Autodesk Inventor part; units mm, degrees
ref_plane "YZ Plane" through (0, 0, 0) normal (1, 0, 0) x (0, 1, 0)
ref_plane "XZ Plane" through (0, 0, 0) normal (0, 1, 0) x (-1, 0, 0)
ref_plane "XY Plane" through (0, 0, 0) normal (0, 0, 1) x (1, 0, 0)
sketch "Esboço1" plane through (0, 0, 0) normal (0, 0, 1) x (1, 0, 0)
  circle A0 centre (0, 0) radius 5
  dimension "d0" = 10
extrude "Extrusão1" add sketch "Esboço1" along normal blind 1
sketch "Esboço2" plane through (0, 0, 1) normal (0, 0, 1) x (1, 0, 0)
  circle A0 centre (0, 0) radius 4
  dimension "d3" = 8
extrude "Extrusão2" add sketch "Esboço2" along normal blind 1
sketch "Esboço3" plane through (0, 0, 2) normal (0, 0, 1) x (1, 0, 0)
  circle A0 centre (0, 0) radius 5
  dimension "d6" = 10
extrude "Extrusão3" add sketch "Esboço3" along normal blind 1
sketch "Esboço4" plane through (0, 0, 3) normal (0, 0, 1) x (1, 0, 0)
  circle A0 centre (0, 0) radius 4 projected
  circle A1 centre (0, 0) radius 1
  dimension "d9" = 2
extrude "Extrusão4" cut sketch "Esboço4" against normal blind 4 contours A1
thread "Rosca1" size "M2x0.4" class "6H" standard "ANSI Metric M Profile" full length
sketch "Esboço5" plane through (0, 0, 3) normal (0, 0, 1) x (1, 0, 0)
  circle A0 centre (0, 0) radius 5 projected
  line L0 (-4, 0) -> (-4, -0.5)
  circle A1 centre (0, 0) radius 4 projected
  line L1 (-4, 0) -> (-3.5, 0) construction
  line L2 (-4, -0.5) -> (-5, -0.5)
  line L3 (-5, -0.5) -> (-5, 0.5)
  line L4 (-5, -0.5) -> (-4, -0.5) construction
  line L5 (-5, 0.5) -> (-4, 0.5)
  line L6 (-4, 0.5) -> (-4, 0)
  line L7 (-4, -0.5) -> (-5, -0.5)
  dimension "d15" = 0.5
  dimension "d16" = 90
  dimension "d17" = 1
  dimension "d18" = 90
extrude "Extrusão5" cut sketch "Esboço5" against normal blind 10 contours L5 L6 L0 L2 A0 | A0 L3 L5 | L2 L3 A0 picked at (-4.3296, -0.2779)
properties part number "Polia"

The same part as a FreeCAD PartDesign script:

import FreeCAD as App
import Part
import Sketcher

doc = App.newDocument("Part")
body = doc.addObject("PartDesign::Body", "Body")

# Sketch on XY plane
sketch1 = doc.addObject("Sketcher::SketchObject", "Sketch")
body.addObject(sketch1)
sketch1.AttachmentSupport = (doc.XY_Plane, [""])
sketch1.MapMode = "FlatFace"
sketch1.addGeometry(Part.Circle(App.Vector(0, 0, 0), App.Vector(0, 0, 1), 5), False)
sketch1.addConstraint([
    Sketcher.Constraint("Coincident", 0, 3, -1, 1),
    Sketcher.Constraint("Diameter", 0, 10.0),
])
pad1 = doc.addObject("PartDesign::Pad", "Pad")
body.addObject(pad1)
pad1.Profile = sketch1
pad1.Length = 1

# Sketch on XY plane
sketch2 = doc.addObject("Sketcher::SketchObject", "Sketch001")
body.addObject(sketch2)
sketch2.AttachmentSupport = (doc.XY_Plane, [""])
sketch2.MapMode = "FlatFace"
sketch2.AttachmentOffset = App.Placement(App.Vector(0, 0, 1), App.Rotation())
sketch2.addGeometry(Part.Circle(App.Vector(0, 0, 0), App.Vector(0, 0, 1), 4), False)
sketch2.addConstraint([
    Sketcher.Constraint("Coincident", 0, 3, -1, 1),
    Sketcher.Constraint("Diameter", 0, 8.0),
])
pad2 = doc.addObject("PartDesign::Pad", "Pad001")
body.addObject(pad2)
pad2.Profile = sketch2
pad2.Length = 1

# Sketch on XY plane
sketch3 = doc.addObject("Sketcher::SketchObject", "Sketch002")
body.addObject(sketch3)
sketch3.AttachmentSupport = (doc.XY_Plane, [""])
sketch3.MapMode = "FlatFace"
sketch3.AttachmentOffset = App.Placement(App.Vector(0, 0, 2), App.Rotation())
sketch3.addGeometry(Part.Circle(App.Vector(0, 0, 0), App.Vector(0, 0, 1), 5), False)
sketch3.addConstraint([
    Sketcher.Constraint("Coincident", 0, 3, -1, 1),
    Sketcher.Constraint("Diameter", 0, 10.0),
])
pad3 = doc.addObject("PartDesign::Pad", "Pad002")
body.addObject(pad3)
pad3.Profile = sketch3
pad3.Length = 1

# Sketch on XY plane
sketch4 = doc.addObject("Sketcher::SketchObject", "Sketch003")
body.addObject(sketch4)
sketch4.AttachmentSupport = (doc.XY_Plane, [""])
sketch4.MapMode = "FlatFace"
sketch4.AttachmentOffset = App.Placement(App.Vector(0, 0, 3), App.Rotation())
sketch4.addGeometry(Part.Circle(App.Vector(0, 0, 0), App.Vector(0, 0, 1), 1), False)
sketch4.addConstraint([
    Sketcher.Constraint("Coincident", 0, 3, -1, 1),
    Sketcher.Constraint("Diameter", 0, 2.0),
])
pocket1 = doc.addObject("PartDesign::Pocket", "Pocket")
body.addObject(pocket1)
pocket1.Profile = sketch4
pocket1.Length = 4

# Sketch on XY plane
sketch5 = doc.addObject("Sketcher::SketchObject", "Sketch004")
body.addObject(sketch5)
sketch5.AttachmentSupport = (doc.XY_Plane, [""])
sketch5.MapMode = "FlatFace"
sketch5.AttachmentOffset = App.Placement(App.Vector(0, 0, 3), App.Rotation())
sketch5.addGeometry([
    Part.LineSegment(App.Vector(-4, 0.5, 0), App.Vector(-5, 0.5, 0)),
    Part.LineSegment(App.Vector(-5, 0.5, 0), App.Vector(-5, -0.5, 0)),
    Part.LineSegment(App.Vector(-5, -0.5, 0), App.Vector(-4, -0.5, 0)),
    Part.LineSegment(App.Vector(-4, -0.5, 0), App.Vector(-4, 0.5, 0)),
], False)
sketch5.addConstraint([
    Sketcher.Constraint("Coincident", 0, 2, 1, 1),
    Sketcher.Constraint("Coincident", 1, 2, 2, 1),
    Sketcher.Constraint("Coincident", 2, 2, 3, 1),
    Sketcher.Constraint("Coincident", 3, 2, 0, 1),
    Sketcher.Constraint("Horizontal", 0),
    Sketcher.Constraint("Vertical", 1),
    Sketcher.Constraint("Horizontal", 2),
    Sketcher.Constraint("Vertical", 3),
    Sketcher.Constraint("Equal", 2, 1),
    Sketcher.Constraint("DistanceX", 0, 2, 0, 1, 1.0),
    Sketcher.Constraint("DistanceY", -1, 1, 0, 2, 0.5),
    Sketcher.Constraint("DistanceX", 0, 2, -1, 1, 5.0),
])
pocket2 = doc.addObject("PartDesign::Pocket", "Pocket001")
body.addObject(pocket2)
pocket2.Profile = sketch5
pocket2.Length = 10

doc.recompute()
